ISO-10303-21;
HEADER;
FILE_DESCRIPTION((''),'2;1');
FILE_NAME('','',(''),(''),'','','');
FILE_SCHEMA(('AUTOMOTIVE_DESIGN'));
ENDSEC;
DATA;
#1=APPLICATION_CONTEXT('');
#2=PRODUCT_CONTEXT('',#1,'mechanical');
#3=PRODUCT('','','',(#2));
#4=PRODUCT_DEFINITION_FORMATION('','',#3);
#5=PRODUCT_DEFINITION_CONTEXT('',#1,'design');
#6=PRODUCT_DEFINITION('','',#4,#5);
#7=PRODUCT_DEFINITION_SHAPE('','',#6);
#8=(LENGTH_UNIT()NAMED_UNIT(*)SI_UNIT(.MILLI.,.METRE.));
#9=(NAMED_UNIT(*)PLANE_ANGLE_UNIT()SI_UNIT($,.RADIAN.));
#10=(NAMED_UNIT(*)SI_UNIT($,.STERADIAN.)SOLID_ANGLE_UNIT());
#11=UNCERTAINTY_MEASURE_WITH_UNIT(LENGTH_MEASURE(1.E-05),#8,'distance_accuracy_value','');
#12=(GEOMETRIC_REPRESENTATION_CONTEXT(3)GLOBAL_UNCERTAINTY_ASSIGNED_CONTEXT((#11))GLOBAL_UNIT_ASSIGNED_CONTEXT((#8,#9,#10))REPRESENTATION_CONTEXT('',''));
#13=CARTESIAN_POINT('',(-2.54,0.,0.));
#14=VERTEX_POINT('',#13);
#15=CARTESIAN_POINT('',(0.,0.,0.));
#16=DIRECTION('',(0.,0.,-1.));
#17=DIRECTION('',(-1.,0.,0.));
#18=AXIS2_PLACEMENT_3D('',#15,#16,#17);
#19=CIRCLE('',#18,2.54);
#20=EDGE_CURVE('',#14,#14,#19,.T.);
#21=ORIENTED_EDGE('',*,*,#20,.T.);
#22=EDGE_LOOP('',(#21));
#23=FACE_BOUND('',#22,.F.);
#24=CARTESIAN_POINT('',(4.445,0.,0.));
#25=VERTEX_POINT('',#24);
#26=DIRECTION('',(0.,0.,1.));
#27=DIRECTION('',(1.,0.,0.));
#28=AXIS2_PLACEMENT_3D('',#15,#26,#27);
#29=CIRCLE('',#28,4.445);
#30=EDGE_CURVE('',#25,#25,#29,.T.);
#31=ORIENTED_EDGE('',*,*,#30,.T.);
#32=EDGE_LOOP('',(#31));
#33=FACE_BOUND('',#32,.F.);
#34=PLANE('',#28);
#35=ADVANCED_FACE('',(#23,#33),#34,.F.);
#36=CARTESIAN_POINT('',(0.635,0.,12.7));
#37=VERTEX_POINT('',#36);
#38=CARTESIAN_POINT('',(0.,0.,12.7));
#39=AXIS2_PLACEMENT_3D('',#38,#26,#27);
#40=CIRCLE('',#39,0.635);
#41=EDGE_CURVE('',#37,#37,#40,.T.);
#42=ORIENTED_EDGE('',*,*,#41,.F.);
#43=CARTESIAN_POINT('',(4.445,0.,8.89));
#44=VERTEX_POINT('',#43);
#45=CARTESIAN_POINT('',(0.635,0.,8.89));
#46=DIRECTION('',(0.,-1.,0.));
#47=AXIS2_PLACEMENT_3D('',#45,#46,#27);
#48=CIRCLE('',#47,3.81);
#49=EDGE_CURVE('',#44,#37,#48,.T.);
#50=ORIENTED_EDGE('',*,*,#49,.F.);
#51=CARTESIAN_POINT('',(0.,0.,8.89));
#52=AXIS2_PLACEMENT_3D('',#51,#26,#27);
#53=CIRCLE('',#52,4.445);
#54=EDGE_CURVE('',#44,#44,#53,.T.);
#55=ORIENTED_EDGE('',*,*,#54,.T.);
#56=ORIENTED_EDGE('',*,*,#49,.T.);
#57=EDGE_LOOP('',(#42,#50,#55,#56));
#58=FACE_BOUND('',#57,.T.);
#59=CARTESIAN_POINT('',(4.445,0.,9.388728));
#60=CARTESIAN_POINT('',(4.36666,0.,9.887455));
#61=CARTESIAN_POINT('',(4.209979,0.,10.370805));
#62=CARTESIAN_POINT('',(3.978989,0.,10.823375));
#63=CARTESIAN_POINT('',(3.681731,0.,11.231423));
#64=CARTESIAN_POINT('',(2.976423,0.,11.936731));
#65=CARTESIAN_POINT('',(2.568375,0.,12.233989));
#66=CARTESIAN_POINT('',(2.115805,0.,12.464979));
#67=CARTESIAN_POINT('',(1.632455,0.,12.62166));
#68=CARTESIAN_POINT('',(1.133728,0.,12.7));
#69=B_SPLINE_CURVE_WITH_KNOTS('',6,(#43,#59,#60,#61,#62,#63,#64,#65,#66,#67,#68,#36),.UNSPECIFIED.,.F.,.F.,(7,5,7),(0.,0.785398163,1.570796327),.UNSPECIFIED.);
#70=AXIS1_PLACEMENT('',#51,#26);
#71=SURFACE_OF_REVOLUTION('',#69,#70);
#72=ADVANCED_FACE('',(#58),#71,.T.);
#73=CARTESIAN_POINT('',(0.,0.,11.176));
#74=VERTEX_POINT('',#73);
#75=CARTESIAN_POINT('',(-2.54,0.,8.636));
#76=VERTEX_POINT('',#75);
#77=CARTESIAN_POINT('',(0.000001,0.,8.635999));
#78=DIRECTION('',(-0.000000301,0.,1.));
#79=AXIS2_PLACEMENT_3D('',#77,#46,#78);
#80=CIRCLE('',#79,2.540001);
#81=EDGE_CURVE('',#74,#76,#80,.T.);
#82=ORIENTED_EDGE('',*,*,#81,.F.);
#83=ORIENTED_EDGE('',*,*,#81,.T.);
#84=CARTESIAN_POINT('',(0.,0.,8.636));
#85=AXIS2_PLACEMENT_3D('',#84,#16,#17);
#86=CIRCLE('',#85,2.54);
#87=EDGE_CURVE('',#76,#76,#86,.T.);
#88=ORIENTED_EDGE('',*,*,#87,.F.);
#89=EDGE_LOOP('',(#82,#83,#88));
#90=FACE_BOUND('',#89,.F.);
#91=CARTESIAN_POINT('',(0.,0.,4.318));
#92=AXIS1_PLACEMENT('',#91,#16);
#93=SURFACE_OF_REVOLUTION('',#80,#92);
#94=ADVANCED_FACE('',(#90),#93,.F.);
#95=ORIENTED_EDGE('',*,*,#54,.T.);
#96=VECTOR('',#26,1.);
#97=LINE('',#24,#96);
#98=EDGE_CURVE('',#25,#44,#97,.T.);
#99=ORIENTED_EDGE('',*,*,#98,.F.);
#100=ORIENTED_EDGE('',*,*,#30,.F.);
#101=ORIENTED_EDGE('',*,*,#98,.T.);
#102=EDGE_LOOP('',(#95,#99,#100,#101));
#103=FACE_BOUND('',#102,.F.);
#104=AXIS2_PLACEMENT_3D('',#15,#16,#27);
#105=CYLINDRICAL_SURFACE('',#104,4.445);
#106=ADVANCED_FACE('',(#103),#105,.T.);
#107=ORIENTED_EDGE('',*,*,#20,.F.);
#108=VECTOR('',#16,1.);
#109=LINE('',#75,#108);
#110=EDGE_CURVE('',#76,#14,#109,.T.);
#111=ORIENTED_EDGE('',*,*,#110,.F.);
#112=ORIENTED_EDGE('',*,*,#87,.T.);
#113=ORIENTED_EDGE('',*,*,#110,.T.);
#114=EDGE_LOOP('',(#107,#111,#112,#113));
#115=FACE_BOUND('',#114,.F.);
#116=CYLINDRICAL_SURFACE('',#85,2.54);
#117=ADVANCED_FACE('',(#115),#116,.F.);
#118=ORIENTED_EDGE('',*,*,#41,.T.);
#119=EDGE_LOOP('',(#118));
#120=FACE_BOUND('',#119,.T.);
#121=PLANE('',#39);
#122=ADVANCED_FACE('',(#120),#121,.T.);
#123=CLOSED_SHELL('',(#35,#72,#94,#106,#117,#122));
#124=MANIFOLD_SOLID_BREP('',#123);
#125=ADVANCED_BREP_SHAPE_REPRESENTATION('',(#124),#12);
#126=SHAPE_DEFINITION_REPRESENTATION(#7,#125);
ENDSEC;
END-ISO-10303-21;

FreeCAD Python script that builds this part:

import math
import FreeCAD as App
import Part
import Sketcher
Q = App.Units.Quantity


def edges_at(feature, points):
    """Names of the edges that pass closest to the given points."""
    edges = feature.Shape.Edges
    near = lambda p: min(range(len(edges)), key=lambda i: edges[i].distToShape(Part.Vertex(*p))[0])
    return sorted({f"Edge{near(p) + 1}" for p in points})

doc = App.newDocument("Part")
body = doc.addObject("PartDesign::Body", "Body")

# Sketch on XY plane
sketch1 = body.newObject("Sketcher::SketchObject", "Sketch")
sketch1.AttachmentSupport = (doc.getObject("XY_Plane"), [""])
sketch1.MapMode = "FlatFace"
sketch1.addGeometry(Part.Circle(App.Vector(0, 0, 0), App.Vector(0, 0, 1), 4.4), False)
sketch1.addConstraint(Sketcher.Constraint("Coincident", 0, 3, -1, 1))
sketch1.addConstraint(Sketcher.Constraint("Diameter", 0, Q("0.35 in")))
pad1 = body.newObject("PartDesign::Pad", "Pad")
pad1.Profile = sketch1
pad1.Length = Q("0.5 in")
doc.recompute()

fillet = body.newObject("PartDesign::Fillet", "Fillet")
fillet.Base = (pad1, edges_at(pad1, [(-4.445, 0, 12.7)]))
fillet.Radius = Q("0.15 in")

# Sketch on XZ plane
sketch2 = body.newObject("Sketcher::SketchObject", "Sketch001")
sketch2.AttachmentSupport = (doc.getObject("XZ_Plane"), [""])
sketch2.MapMode = "FlatFace"
sketch2.addGeometry(Part.LineSegment(App.Vector(-2.5, 0, 0), App.Vector(0, 0, 0)), False)
sketch2.addGeometry(Part.LineSegment(App.Vector(0, 0, 0), App.Vector(0, 11.2, 0)), False)
sketch2.addGeometry(Part.ArcOfCircle(Part.Circle(App.Vector(0, 8.6, 0), App.Vector(0, 0, 1), 2.5), math.radians(90), math.radians(180)), False)
sketch2.addGeometry(Part.LineSegment(App.Vector(-2.5, 8.6, 0), App.Vector(-2.5, 0, 0)), False)
sketch2.addConstraint(Sketcher.Constraint("Coincident", 0, 2, 1, 1))
sketch2.addConstraint(Sketcher.Constraint("Coincident", 1, 2, 2, 1))
sketch2.addConstraint(Sketcher.Constraint("Tangent", 2, 2, 3, 1))
sketch2.addConstraint(Sketcher.Constraint("Coincident", 3, 2, 0, 1))
sketch2.addConstraint(Sketcher.Constraint("Horizontal", 0))
sketch2.addConstraint(Sketcher.Constraint("Vertical", 1))
sketch2.addConstraint(Sketcher.Constraint("Vertical", 3))
sketch2.addConstraint(Sketcher.Constraint("Coincident", 0, 2, -1, 1))
sketch2.addConstraint(Sketcher.Constraint("PointOnObject", 2, 3, -2))
sketch2.addConstraint(Sketcher.Constraint("Radius", 2, Q("0.1 in")))
sketch2.addConstraint(Sketcher.Constraint("DistanceY", 1, 1, 1, 2, Q("0.44 in")))
groove = body.newObject("PartDesign::Groove", "Groove")
groove.Profile = sketch2
groove.ReferenceAxis = (sketch2, ["V_Axis"])
groove.Angle = 360

doc.recompute()
